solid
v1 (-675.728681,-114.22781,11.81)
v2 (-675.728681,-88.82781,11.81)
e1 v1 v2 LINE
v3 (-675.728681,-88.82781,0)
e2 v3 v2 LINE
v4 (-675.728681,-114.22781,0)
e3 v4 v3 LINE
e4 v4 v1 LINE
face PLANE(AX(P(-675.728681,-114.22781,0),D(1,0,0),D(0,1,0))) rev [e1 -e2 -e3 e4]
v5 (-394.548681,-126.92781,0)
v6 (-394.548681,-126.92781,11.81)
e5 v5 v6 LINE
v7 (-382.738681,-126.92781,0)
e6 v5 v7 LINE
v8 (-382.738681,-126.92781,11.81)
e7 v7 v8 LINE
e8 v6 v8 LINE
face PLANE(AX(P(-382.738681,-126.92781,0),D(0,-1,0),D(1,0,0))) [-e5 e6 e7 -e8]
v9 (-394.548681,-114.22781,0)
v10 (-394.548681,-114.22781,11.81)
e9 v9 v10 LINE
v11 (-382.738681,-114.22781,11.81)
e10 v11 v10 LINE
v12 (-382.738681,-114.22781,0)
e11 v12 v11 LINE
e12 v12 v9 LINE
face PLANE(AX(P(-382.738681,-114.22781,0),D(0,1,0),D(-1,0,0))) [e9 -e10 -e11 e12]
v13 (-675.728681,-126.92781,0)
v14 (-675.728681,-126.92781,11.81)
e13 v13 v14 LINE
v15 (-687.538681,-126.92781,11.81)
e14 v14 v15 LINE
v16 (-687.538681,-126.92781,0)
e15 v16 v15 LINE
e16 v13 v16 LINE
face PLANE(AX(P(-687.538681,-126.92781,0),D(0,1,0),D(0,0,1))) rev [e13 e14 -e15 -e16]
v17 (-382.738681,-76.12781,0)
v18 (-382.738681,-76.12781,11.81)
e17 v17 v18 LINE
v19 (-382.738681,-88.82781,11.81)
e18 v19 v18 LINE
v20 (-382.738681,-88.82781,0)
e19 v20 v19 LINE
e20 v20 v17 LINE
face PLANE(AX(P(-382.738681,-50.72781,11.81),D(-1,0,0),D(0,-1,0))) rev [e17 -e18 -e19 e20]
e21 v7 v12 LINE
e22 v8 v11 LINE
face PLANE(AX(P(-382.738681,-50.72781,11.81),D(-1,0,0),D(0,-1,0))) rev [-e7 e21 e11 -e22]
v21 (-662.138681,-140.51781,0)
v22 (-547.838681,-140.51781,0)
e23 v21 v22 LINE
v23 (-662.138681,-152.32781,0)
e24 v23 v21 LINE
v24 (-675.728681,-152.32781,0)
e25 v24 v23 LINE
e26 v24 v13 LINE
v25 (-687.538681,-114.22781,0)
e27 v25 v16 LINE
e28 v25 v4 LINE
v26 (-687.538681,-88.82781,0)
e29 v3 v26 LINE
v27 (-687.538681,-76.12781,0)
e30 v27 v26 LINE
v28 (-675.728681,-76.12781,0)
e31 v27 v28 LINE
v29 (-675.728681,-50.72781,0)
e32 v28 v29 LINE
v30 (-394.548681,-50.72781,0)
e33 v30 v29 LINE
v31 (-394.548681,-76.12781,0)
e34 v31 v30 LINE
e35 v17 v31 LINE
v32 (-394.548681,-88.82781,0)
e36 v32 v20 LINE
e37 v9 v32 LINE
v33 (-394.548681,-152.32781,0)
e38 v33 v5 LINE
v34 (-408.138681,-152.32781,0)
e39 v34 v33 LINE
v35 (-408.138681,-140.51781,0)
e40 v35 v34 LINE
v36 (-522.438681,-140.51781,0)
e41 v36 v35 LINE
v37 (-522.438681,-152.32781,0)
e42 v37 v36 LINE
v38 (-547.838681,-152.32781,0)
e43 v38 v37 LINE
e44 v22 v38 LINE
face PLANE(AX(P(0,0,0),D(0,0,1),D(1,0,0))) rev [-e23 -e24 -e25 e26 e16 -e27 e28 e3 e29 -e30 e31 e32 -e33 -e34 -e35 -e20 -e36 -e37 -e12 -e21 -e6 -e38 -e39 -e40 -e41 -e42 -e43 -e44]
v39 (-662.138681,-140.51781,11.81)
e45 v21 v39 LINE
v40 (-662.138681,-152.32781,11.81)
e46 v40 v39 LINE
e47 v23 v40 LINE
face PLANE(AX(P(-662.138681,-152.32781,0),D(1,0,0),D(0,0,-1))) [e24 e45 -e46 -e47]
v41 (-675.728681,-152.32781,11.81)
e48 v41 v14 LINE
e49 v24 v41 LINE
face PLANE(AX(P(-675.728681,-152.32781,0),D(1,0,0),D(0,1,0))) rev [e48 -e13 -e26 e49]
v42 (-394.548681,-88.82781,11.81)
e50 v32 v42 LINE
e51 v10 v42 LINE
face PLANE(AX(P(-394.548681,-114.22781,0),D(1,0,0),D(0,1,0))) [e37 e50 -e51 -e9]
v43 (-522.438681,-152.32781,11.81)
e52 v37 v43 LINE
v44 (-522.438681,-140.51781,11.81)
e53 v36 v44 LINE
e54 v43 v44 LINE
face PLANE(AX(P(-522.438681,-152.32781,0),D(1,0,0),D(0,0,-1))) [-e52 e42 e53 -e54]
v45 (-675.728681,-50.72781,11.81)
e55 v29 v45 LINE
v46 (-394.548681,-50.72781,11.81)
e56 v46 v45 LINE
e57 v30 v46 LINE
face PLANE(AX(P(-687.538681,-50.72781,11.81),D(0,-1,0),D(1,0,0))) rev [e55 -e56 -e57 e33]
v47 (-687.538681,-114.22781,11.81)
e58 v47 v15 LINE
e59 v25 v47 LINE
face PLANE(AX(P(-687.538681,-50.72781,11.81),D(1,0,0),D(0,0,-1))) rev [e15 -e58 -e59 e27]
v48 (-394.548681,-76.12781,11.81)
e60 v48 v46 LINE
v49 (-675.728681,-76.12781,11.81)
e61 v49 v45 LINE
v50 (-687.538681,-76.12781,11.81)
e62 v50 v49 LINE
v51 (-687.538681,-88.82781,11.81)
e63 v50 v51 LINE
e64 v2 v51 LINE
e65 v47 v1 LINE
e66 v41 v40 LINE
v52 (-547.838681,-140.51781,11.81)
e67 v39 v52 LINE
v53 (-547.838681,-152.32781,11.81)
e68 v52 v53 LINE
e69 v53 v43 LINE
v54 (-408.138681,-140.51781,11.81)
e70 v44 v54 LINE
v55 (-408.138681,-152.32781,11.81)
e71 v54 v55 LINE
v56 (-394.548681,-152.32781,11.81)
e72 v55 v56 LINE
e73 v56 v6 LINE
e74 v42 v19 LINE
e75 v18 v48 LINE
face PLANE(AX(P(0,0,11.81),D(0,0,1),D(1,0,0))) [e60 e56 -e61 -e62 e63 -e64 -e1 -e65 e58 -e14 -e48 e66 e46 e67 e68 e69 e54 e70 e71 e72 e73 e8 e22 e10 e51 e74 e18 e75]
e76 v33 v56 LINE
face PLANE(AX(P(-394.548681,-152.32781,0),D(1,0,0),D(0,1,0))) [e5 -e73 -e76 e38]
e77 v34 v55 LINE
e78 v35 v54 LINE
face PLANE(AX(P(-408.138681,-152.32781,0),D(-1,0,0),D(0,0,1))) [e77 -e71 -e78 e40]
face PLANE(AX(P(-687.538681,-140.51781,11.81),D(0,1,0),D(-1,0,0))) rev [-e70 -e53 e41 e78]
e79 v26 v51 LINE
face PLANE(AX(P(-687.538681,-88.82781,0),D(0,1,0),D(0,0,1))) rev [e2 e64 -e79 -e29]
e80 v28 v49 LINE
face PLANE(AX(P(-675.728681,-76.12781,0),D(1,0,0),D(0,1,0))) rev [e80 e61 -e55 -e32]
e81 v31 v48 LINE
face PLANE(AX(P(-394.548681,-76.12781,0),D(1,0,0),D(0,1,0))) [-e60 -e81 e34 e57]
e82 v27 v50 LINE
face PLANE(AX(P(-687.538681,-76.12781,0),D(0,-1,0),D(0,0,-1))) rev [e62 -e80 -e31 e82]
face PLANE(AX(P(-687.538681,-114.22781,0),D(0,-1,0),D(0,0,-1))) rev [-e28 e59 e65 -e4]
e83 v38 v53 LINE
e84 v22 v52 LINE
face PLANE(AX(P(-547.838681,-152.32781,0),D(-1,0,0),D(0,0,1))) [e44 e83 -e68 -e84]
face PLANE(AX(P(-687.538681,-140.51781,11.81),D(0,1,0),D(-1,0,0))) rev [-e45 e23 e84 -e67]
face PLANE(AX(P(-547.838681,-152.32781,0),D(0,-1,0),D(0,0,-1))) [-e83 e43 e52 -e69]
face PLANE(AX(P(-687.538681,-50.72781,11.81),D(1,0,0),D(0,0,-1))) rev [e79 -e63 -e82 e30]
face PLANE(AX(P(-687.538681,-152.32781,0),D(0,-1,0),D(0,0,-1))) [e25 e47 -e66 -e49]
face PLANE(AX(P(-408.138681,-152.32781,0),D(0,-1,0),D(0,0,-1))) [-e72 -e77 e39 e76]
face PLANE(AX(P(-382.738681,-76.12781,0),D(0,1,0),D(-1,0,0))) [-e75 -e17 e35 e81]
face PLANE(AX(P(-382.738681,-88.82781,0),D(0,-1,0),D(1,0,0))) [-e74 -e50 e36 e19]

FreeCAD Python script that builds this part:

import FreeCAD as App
import Part
import Sketcher
Q = App.Units.Quantity

doc = App.newDocument("Part")
body = doc.addObject("PartDesign::Body", "Body")

# Sketch on XY plane
sketch1 = body.newObject("Sketcher::SketchObject", "Sketch")
sketch1.AttachmentSupport = (doc.getObject("XY_Plane"), [""])
sketch1.MapMode = "FlatFace"
sketch1.addGeometry(Part.LineSegment(App.Vector(-688, -51, 0), App.Vector(-688, -141, 0)), False)
sketch1.addGeometry(Part.LineSegment(App.Vector(-688, -141, 0), App.Vector(-383, -141, 0)), False)
sketch1.addGeometry(Part.LineSegment(App.Vector(-383, -141, 0), App.Vector(-383, -51, 0)), False)
sketch1.addGeometry(Part.LineSegment(App.Vector(-383, -51, 0), App.Vector(-688, -51, 0)), False)
sketch1.addConstraint(Sketcher.Constraint("Coincident", 0, 2, 1, 1))
sketch1.addConstraint(Sketcher.Constraint("Coincident", 1, 2, 2, 1))
sketch1.addConstraint(Sketcher.Constraint("Coincident", 2, 2, 3, 1))
sketch1.addConstraint(Sketcher.Constraint("Coincident", 3, 2, 0, 1))
sketch1.addConstraint(Sketcher.Constraint("Vertical", 0))
sketch1.addConstraint(Sketcher.Constraint("Horizontal", 1))
sketch1.addConstraint(Sketcher.Constraint("Vertical", 2))
sketch1.addConstraint(Sketcher.Constraint("Horizontal", 3))
sketch1.addConstraint(Sketcher.Constraint("DistanceX", 1, 1, 1, 2, Q("12 in")))
sketch1.addConstraint(Sketcher.Constraint("DistanceY", 0, 2, 0, 1, 89.79))
sketch1.addConstraint(Sketcher.Constraint("DistanceX", 0, 2, -1, 1, 687.538681))
sketch1.addConstraint(Sketcher.Constraint("DistanceY", 0, 2, -1, 1, 140.51781))
pad1 = body.newObject("PartDesign::Pad", "Pad")
pad1.Profile = sketch1
pad1.Length = 11.81

# Sketch on XY plane
sketch2 = body.newObject("Sketcher::SketchObject", "Sketch001")
sketch2.AttachmentSupport = (doc.getObject("XY_Plane"), [""])
sketch2.MapMode = "FlatFace"
sketch2.AttachmentOffset = App.Placement(App.Vector(0, 0, 11.81), App.Rotation())
sketch2.addGeometry(Part.LineSegment(App.Vector(-688, -141, 0), App.Vector(-688, -152, 0)), False)
sketch2.addGeometry(Part.LineSegment(App.Vector(-688, -152, 0), App.Vector(-662, -152, 0)), False)
sketch2.addGeometry(Part.LineSegment(App.Vector(-662, -152, 0), App.Vector(-662, -141, 0)), False)
sketch2.addGeometry(Part.LineSegment(App.Vector(-662, -141, 0), App.Vector(-688, -141, 0)), False)
sketch2.addConstraint(Sketcher.Constraint("Coincident", 0, 2, 1, 1))
sketch2.addConstraint(Sketcher.Constraint("Coincident", 1, 2, 2, 1))
sketch2.addConstraint(Sketcher.Constraint("Coincident", 2, 2, 3, 1))
sketch2.addConstraint(Sketcher.Constraint("Coincident", 3, 2, 0, 1))
sketch2.addConstraint(Sketcher.Constraint("Vertical", 0))
sketch2.addConstraint(Sketcher.Constraint("Horizontal", 1))
sketch2.addConstraint(Sketcher.Constraint("Vertical", 2))
sketch2.addConstraint(Sketcher.Constraint("Horizontal", 3))
sketch2.addConstraint(Sketcher.Constraint("DistanceX", 1, 1, 1, 2, Q("1 in")))
sketch2.addConstraint(Sketcher.Constraint("DistanceY", 0, 2, 0, 1, 11.81))
sketch2.addConstraint(Sketcher.Constraint("DistanceX", 0, 2, -1, 1, 687.538681))
sketch2.addConstraint(Sketcher.Constraint("DistanceY", 0, 2, -1, 1, 152.32781))
pad2 = body.newObject("PartDesign::Pad", "Pad001")
pad2.Profile = sketch2
pad2.Length = 11.81
pad2.Reversed = True

# Sketch on XY plane
sketch3 = body.newObject("Sketcher::SketchObject", "Sketch002")
sketch3.AttachmentSupport = (doc.getObject("XY_Plane"), [""])
sketch3.MapMode = "FlatFace"
sketch3.AttachmentOffset = App.Placement(App.Vector(0, 0, 11.81), App.Rotation())
sketch3.addGeometry(Part.LineSegment(App.Vector(-688, -127, 0), App.Vector(-688, -152, 0)), False)
sketch3.addGeometry(Part.LineSegment(App.Vector(-688, -152, 0), App.Vector(-676, -152, 0)), False)
sketch3.addGeometry(Part.LineSegment(App.Vector(-676, -152, 0), App.Vector(-676, -127, 0)), False)
sketch3.addGeometry(Part.LineSegment(App.Vector(-676, -127, 0), App.Vector(-688, -127, 0)), False)
sketch3.addConstraint(Sketcher.Constraint("Coincident", 0, 2, 1, 1))
sketch3.addConstraint(Sketcher.Constraint("Coincident", 1, 2, 2, 1))
sketch3.addConstraint(Sketcher.Constraint("Coincident", 2, 2, 3, 1))
sketch3.addConstraint(Sketcher.Constraint("Coincident", 3, 2, 0, 1))
sketch3.addConstraint(Sketcher.Constraint("Vertical", 0))
sketch3.addConstraint(Sketcher.Constraint("Horizontal", 1))
sketch3.addConstraint(Sketcher.Constraint("Vertical", 2))
sketch3.addConstraint(Sketcher.Constraint("Horizontal", 3))
sketch3.addConstraint(Sketcher.Constraint("DistanceY", 0, 2, 0, 1, Q("1 in")))
sketch3.addConstraint(Sketcher.Constraint("DistanceX", 1, 1, 1, 2, 11.81))
sketch3.addConstraint(Sketcher.Constraint("DistanceX", 0, 2, -1, 1, 687.538681))
sketch3.addConstraint(Sketcher.Constraint("DistanceY", 0, 2, -1, 1, 152.32781))
pocket1 = body.newObject("PartDesign::Pocket", "Pocket")
pocket1.Profile = sketch3
pocket1.Type = "ThroughAll"
doc.recompute()

linearpattern = body.newObject("PartDesign::LinearPattern", "LinearPattern")
linearpattern.Originals = [pad2]
linearpattern.Direction = (doc.getObject("X_Axis"), [""])
linearpattern.Mode = "offset"
linearpattern.Offset = Q("5.5 in")
linearpattern.Occurrences = 3
body.Tip = linearpattern
doc.recompute()

linearpattern2 = body.newObject("PartDesign::LinearPattern", "LinearPattern001")
linearpattern2.Originals = [pocket1]
linearpattern2.Direction = (doc.getObject("Y_Axis"), [""])
linearpattern2.Mode = "offset"
linearpattern2.Offset = Q("1.5 in")
linearpattern2.Occurrences = 3
body.Tip = linearpattern2
doc.recompute()

datumplane = body.newObject("PartDesign::Plane", "DatumPlane")
datumplane.AttachmentSupport = (doc.getObject("YZ_Plane"), [""])
datumplane.MapMode = "FlatFace"
datumplane.AttachmentOffset = App.Placement(App.Vector(0, 0, -535.138681), App.Rotation())
mirrored = body.newObject("PartDesign::Mirrored", "Mirrored")
mirrored.Originals = [pocket1]
mirrored.MirrorPlane = (datumplane, [""])
body.Tip = mirrored

# Sketch on XY plane
sketch4 = body.newObject("Sketcher::SketchObject", "Sketch003")
sketch4.AttachmentSupport = (doc.getObject("XY_Plane"), [""])
sketch4.MapMode = "FlatFace"
sketch4.AttachmentOffset = App.Placement(App.Vector(0, 0, 11.81), App.Rotation())
sketch4.addGeometry(Part.LineSegment(App.Vector(-383, -114, 0), App.Vector(-383, -89, 0)), False)
sketch4.addGeometry(Part.LineSegment(App.Vector(-383, -89, 0), App.Vector(-395, -89, 0)), False)
sketch4.addGeometry(Part.LineSegment(App.Vector(-395, -89, 0), App.Vector(-395, -114, 0)), False)
sketch4.addGeometry(Part.LineSegment(App.Vector(-395, -114, 0), App.Vector(-383, -114, 0)), False)
sketch4.addConstraint(Sketcher.Constraint("Coincident", 0, 2, 1, 1))
sketch4.addConstraint(Sketcher.Constraint("Coincident", 1, 2, 2, 1))
sketch4.addConstraint(Sketcher.Constraint("Coincident", 2, 2, 3, 1))
sketch4.addConstraint(Sketcher.Constraint("Coincident", 3, 2, 0, 1))
sketch4.addConstraint(Sketcher.Constraint("Vertical", 0))
sketch4.addConstraint(Sketcher.Constraint("Horizontal", 1))
sketch4.addConstraint(Sketcher.Constraint("Vertical", 2))
sketch4.addConstraint(Sketcher.Constraint("Horizontal", 3))
sketch4.addConstraint(Sketcher.Constraint("DistanceY", 0, 1, 0, 2, Q("1 in")))
sketch4.addConstraint(Sketcher.Constraint("DistanceX", 1, 2, 1, 1, 11.81))
sketch4.addConstraint(Sketcher.Constraint("DistanceX", 0, 2, -1, 1, 382.738681))
sketch4.addConstraint(Sketcher.Constraint("DistanceY", 0, 2, -1, 1, 88.82781))
pocket2 = body.newObject("PartDesign::Pocket", "Pocket001")
pocket2.Profile = sketch4
pocket2.Type = "ThroughAll"

# Sketch on XY plane
sketch5 = body.newObject("Sketcher::SketchObject", "Sketch004")
sketch5.AttachmentSupport = (doc.getObject("XY_Plane"), [""])
sketch5.MapMode = "FlatFace"
sketch5.AttachmentOffset = App.Placement(App.Vector(0, 0, 11.81), App.Rotation())
sketch5.addGeometry(Part.LineSegment(App.Vector(-383, -76, 0), App.Vector(-383, -51, 0)), False)
sketch5.addGeometry(Part.LineSegment(App.Vector(-383, -51, 0), App.Vector(-395, -51, 0)), False)
sketch5.addGeometry(Part.LineSegment(App.Vector(-395, -51, 0), App.Vector(-395, -76, 0)), False)
sketch5.addGeometry(Part.LineSegment(App.Vector(-395, -76, 0), App.Vector(-383, -76, 0)), False)
sketch5.addConstraint(Sketcher.Constraint("Coincident", 0, 2, 1, 1))
sketch5.addConstraint(Sketcher.Constraint("Coincident", 1, 2, 2, 1))
sketch5.addConstraint(Sketcher.Constraint("Coincident", 2, 2, 3, 1))
sketch5.addConstraint(Sketcher.Constraint("Coincident", 3, 2, 0, 1))
sketch5.addConstraint(Sketcher.Constraint("Vertical", 0))
sketch5.addConstraint(Sketcher.Constraint("Horizontal", 1))
sketch5.addConstraint(Sketcher.Constraint("Vertical", 2))
sketch5.addConstraint(Sketcher.Constraint("Horizontal", 3))
sketch5.addConstraint(Sketcher.Constraint("DistanceY", 0, 1, 0, 2, Q("1 in")))
sketch5.addConstraint(Sketcher.Constraint("DistanceX", 1, 2, 1, 1, 11.81))
sketch5.addConstraint(Sketcher.Constraint("DistanceX", 0, 2, -1, 1, 382.738681))
sketch5.addConstraint(Sketcher.Constraint("DistanceY", 0, 2, -1, 1, 50.72781))
pocket3 = body.newObject("PartDesign::Pocket", "Pocket002")
pocket3.Profile = sketch5
pocket3.Type = "ThroughAll"

doc.recompute()
